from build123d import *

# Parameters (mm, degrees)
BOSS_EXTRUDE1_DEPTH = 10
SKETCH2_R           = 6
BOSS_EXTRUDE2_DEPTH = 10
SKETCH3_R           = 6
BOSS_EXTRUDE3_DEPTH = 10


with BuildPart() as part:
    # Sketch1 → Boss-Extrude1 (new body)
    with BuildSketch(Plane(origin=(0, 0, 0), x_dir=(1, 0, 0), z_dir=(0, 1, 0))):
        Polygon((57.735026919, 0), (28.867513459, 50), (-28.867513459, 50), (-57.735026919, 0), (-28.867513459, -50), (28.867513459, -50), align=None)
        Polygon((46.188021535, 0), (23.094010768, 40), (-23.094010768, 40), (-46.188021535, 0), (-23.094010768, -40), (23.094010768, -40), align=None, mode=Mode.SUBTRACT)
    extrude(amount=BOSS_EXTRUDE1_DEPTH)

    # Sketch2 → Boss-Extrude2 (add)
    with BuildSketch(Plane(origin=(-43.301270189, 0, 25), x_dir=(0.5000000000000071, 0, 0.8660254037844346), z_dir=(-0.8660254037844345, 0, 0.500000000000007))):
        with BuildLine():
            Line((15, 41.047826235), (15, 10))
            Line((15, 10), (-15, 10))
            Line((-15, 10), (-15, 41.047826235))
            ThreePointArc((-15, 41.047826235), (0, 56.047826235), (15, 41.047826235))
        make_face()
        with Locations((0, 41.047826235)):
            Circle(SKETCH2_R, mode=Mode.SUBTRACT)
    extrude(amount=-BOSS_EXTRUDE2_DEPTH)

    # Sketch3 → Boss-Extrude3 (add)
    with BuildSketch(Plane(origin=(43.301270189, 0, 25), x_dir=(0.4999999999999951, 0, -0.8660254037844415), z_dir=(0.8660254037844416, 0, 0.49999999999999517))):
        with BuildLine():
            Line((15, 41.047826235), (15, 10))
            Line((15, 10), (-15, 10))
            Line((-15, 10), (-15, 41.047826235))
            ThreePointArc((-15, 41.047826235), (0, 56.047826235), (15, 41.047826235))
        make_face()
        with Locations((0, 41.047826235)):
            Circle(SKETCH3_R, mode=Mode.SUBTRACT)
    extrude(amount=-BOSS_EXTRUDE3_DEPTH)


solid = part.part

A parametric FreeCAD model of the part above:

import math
import FreeCAD as App
import Part
import Sketcher

V = App.Vector
Q = App.Units.Quantity

doc = App.newDocument("Part")
body = doc.addObject("PartDesign::Body", "Body")

# Sketch on XZ plane
sketch1 = doc.addObject("Sketcher::SketchObject", "Sketch")
body.addObject(sketch1)
sketch1.AttachmentSupport = (doc.XZ_Plane, [""])
sketch1.MapMode = "FlatFace"
sketch1.addGeometry([
    Part.LineSegment(V(58, 0, 0), V(29, -50, 0)),  # 0
    Part.LineSegment(V(29, -50, 0), V(-29, -50, 0)),  # 1
    Part.LineSegment(V(-29, -50, 0), V(-58, 0, 0)),  # 2
    Part.LineSegment(V(-58, 0, 0), V(-29, 50, 0)),  # 3
    Part.LineSegment(V(-29, 50, 0), V(29, 50, 0)),  # 4
    Part.LineSegment(V(29, 50, 0), V(58, 0, 0)),  # 5
    Part.LineSegment(V(23, -40, 0), V(46, 0, 0)),  # 6
    Part.LineSegment(V(46, 0, 0), V(23, 40, 0)),  # 7
    Part.LineSegment(V(23, 40, 0), V(-23, 40, 0)),  # 8
    Part.LineSegment(V(-23, 40, 0), V(-46, 0, 0)),  # 9
    Part.LineSegment(V(-46, 0, 0), V(-23, -40, 0)),  # 10
    Part.LineSegment(V(-23, -40, 0), V(23, -40, 0)),  # 11
], False)
sketch1.addConstraint([
    Sketcher.Constraint("Coincident", 0, 2, 1, 1),
    Sketcher.Constraint("Coincident", 1, 2, 2, 1),
    Sketcher.Constraint("Coincident", 2, 2, 3, 1),
    Sketcher.Constraint("Coincident", 3, 2, 4, 1),
    Sketcher.Constraint("Coincident", 4, 2, 5, 1),
    Sketcher.Constraint("Coincident", 5, 2, 0, 1),
    Sketcher.Constraint("Coincident", 6, 2, 7, 1),
    Sketcher.Constraint("Coincident", 7, 2, 8, 1),
    Sketcher.Constraint("Coincident", 8, 2, 9, 1),
    Sketcher.Constraint("Coincident", 9, 2, 10, 1),
    Sketcher.Constraint("Coincident", 10, 2, 11, 1),
    Sketcher.Constraint("Coincident", 11, 2, 6, 1),
    Sketcher.Constraint("Horizontal", 1),
    Sketcher.Constraint("Horizontal", 4),
    Sketcher.Constraint("Horizontal", 8),
    Sketcher.Constraint("Horizontal", 11),
    Sketcher.Constraint("Symmetric", 0, 2, 3, 2, -1, 1),
    Sketcher.Constraint("Symmetric", 2, 2, 5, 2, -1, 1),
    Sketcher.Constraint("Symmetric", 6, 2, 9, 2, -1, 1),
    Sketcher.Constraint("Symmetric", 7, 2, 10, 2, -1, 1),
    Sketcher.Constraint("PointOnObject", 2, 2, -1),
    Sketcher.Constraint("PointOnObject", 6, 2, -1),
    Sketcher.Constraint("Parallel", 2, 5),
    Sketcher.Constraint("Parallel", 3, 6),
    Sketcher.Constraint("Parallel", 5, 7),
    Sketcher.Constraint("Parallel", 6, 9),
    Sketcher.Constraint("Vertical", 1, 2, 3, 2),
    Sketcher.Constraint("Angle", 0, Q("-120 deg")),
    Sketcher.Constraint("DistanceY", 0, 2, -1, 1, 50.0),
    Sketcher.Constraint("DistanceY", -1, 1, 7, 2, 40.0),
    Sketcher.Constraint("DistanceX", 8, 2, 8, 1, 46.188022),
    Sketcher.Constraint("DistanceX", 1, 2, 1, 1, 57.735027),
])
pad1 = doc.addObject("PartDesign::Pad", "Pad")
body.addObject(pad1)
pad1.Profile = sketch1
pad1.Length = 10
pad1.Reversed = True

# Sketch on an angled plane
sketch2 = doc.addObject("Sketcher::SketchObject", "Sketch001")
body.addObject(sketch2)
sketch2.Placement = App.Placement(V(-43.30127, 0, 25), App.Rotation(V(0.5, 0, 0.866025404), V(0, 1, 0), V(-0.866025404, 0, 0.5), "ZXY"))
sketch2.addGeometry([
    Part.LineSegment(V(15, 10, 0), V(15, 41, 0)),  # 0
    Part.ArcOfCircle(Part.Circle(V(0, 41, 0), V(0, 0, 1), 15), math.radians(0), math.radians(180)),  # 1
    Part.LineSegment(V(-15, 41, 0), V(-15, 10, 0)),  # 2
    Part.LineSegment(V(-15, 10, 0), V(15, 10, 0)),  # 3
    Part.Circle(V(0, 41, 0), V(0, 0, 1), 6),  # 4
], False)
sketch2.addConstraint([
    Sketcher.Constraint("Tangent", 0, 2, 1, 1),
    Sketcher.Constraint("Tangent", 1, 2, 2, 1),
    Sketcher.Constraint("Coincident", 2, 2, 3, 1),
    Sketcher.Constraint("Coincident", 3, 2, 0, 1),
    Sketcher.Constraint("Vertical", 0),
    Sketcher.Constraint("Vertical", 2),
    Sketcher.Constraint("Horizontal", 3),
    Sketcher.Constraint("Coincident", 4, 3, 1, 3),
    Sketcher.Constraint("PointOnObject", 1, 3, -2),
    Sketcher.Constraint("Diameter", 4, 12.0),
    Sketcher.Constraint("Radius", 1, 15.0),
    Sketcher.Constraint("DistanceY", -1, 1, 2, 2, 10.0),
    Sketcher.Constraint("DistanceY", 0, 1, 0, 2, 31.047826),
])
pad2 = doc.addObject("PartDesign::Pad", "Pad001")
body.addObject(pad2)
pad2.Profile = sketch2
pad2.Length = 10
pad2.Reversed = True

# Sketch on an angled plane
sketch3 = doc.addObject("Sketcher::SketchObject", "Sketch002")
body.addObject(sketch3)
sketch3.Placement = App.Placement(V(43.30127, 0, 25), App.Rotation(V(0.5, 0, -0.866025404), V(0, 1, 0), V(0.866025404, 0, 0.5), "ZXY"))
sketch3.addGeometry([
    Part.LineSegment(V(15, 10, 0), V(15, 41, 0)),  # 0
    Part.ArcOfCircle(Part.Circle(V(0, 41, 0), V(0, 0, 1), 15), math.radians(0), math.radians(180)),  # 1
    Part.LineSegment(V(-15, 41, 0), V(-15, 10, 0)),  # 2
    Part.LineSegment(V(-15, 10, 0), V(15, 10, 0)),  # 3
    Part.Circle(V(0, 41, 0), V(0, 0, 1), 6),  # 4
], False)
sketch3.addConstraint([
    Sketcher.Constraint("Tangent", 0, 2, 1, 1),
    Sketcher.Constraint("Tangent", 1, 2, 2, 1),
    Sketcher.Constraint("Coincident", 2, 2, 3, 1),
    Sketcher.Constraint("Coincident", 3, 2, 0, 1),
    Sketcher.Constraint("Vertical", 0),
    Sketcher.Constraint("Vertical", 2),
    Sketcher.Constraint("Horizontal", 3),
    Sketcher.Constraint("Coincident", 4, 3, 1, 3),
    Sketcher.Constraint("PointOnObject", 1, 3, -2),
    Sketcher.Constraint("Diameter", 4, 12.0),
    Sketcher.Constraint("Radius", 1, 15.0),
    Sketcher.Constraint("DistanceY", -1, 1, 2, 2, 10.0),
    Sketcher.Constraint("DistanceY", 0, 1, 0, 2, 31.047826),
])
pad3 = doc.addObject("PartDesign::Pad", "Pad002")
body.addObject(pad3)
pad3.Profile = sketch3
pad3.Length = 10
pad3.Reversed = True

doc.recompute()
